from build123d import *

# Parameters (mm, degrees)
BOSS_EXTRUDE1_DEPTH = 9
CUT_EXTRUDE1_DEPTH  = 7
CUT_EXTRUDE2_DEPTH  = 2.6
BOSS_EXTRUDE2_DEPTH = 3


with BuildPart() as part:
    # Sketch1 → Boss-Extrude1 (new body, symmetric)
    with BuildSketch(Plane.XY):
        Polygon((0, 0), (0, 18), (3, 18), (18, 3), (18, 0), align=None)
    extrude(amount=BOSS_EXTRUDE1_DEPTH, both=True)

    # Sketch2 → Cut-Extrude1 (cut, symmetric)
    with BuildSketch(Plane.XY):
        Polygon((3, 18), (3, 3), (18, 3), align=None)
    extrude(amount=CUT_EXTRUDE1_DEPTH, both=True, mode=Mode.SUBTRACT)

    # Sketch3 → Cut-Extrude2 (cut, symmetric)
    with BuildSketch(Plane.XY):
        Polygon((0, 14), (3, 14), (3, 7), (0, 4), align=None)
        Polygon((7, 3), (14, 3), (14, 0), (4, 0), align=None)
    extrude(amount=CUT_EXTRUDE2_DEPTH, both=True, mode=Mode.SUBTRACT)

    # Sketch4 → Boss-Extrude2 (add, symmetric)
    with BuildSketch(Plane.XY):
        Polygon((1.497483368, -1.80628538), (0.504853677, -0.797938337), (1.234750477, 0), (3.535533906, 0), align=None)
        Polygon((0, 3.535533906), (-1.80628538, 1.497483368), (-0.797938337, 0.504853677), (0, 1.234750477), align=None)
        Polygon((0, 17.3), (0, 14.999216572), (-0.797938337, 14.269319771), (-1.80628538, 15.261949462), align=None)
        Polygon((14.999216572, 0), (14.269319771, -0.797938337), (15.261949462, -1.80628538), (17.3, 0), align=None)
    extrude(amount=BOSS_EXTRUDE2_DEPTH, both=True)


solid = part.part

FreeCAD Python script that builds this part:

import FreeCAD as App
import Part
import Sketcher
from FreeCAD import Vector
Q = App.Units.Quantity


def add_polygon(sketch, points):
    """Adds a closed chain of lines whose ends are joined by coincident constraints."""
    first, n = sketch.GeometryCount, len(points)
    for a, b in zip(points, points[1:] + points[:1]):
        sketch.addGeometry(Part.LineSegment(App.Vector(*a, 0), App.Vector(*b, 0)), False)
    for i in range(n):
        sketch.addConstraint(Sketcher.Constraint("Coincident", first + i, 2, first + (i + 1) % n, 1))

doc = App.newDocument("Part")
params = doc.addObject("Spreadsheet::Sheet", "Params")
for row, (alias, value) in enumerate([
    ("sketch1_width", "18 mm"),
    ("sketch1_width2", "3 mm"),
    ("pad1_length", "18 mm"),
    ("sketch2_width", "15 mm"),
    ("pocket1_length", "14 mm"),
    ("sketch3_width", "3 mm"),
    ("sketch3_width2", "7 mm"),
    ("pocket2_length", "5.2 mm"),
    ("pad2_length", "6 mm"),
], start=1):
    params.set(f"A{row}", alias)
    params.set(f"B{row}", "=" + value)
    params.setAlias(f"B{row}", alias)

body = doc.addObject("PartDesign::Body", "Body")

sketch1 = body.newObject("Sketcher::SketchObject", "Sketch")
sketch1.AttachmentSupport = (doc.getObject("XY_Plane"), [""])
sketch1.MapMode = "FlatFace"
add_polygon(sketch1, [(0, 18), (0, 0), (18, 0), (18, 3), (3, 18)])
sketch1.addConstraint([
    Sketcher.Constraint("Vertical", 0),
    Sketcher.Constraint("Horizontal", 1),
    Sketcher.Constraint("Vertical", 2),
    Sketcher.Constraint("Horizontal", 4),
    Sketcher.Constraint("Coincident", 0, 2, -1, 1),
    Sketcher.Constraint("Equal", 1, 0),
    Sketcher.Constraint("Equal", 4, 2),
    Sketcher.Constraint("DistanceX", 1, 1, 1, 2, Q("18 mm")),
    Sketcher.Constraint("DistanceX", 4, 2, 4, 1, Q("3 mm")),
])
sketch1.setExpression("Constraints[12]", "Params.sketch1_width")
sketch1.setExpression("Constraints[13]", "Params.sketch1_width2")
pad1 = body.newObject("PartDesign::Pad", "Pad")
pad1.Profile = sketch1
pad1.setExpression("Length", "Params.pad1_length")
pad1.Midplane = True

sketch2 = body.newObject("Sketcher::SketchObject", "Sketch001")
sketch2.AttachmentSupport = (doc.getObject("XY_Plane"), [""])
sketch2.MapMode = "FlatFace"
add_polygon(sketch2, [(3, 18), (3, 3), (18, 3)])
sketch2.addConstraint([
    Sketcher.Constraint("Vertical", 0),
    Sketcher.Constraint("Horizontal", 1),
    Sketcher.Constraint("Equal", 1, 0),
    Sketcher.Constraint("DistanceX", 1, 1, 1, 2, Q("15 mm")),
    Sketcher.Constraint("DistanceX", -1, 1, 0, 2, Q("3 mm")),
    Sketcher.Constraint("DistanceY", -1, 1, 0, 2, Q("3 mm")),
])
sketch2.setExpression("Constraints[6]", "Params.sketch2_width")
pocket1 = body.newObject("PartDesign::Pocket", "Pocket")
pocket1.Profile = sketch2
pocket1.setExpression("Length", "Params.pocket1_length")
pocket1.Midplane = True

sketch3 = body.newObject("Sketcher::SketchObject", "Sketch002")
sketch3.AttachmentSupport = (doc.getObject("XY_Plane"), [""])
sketch3.MapMode = "FlatFace"
add_polygon(sketch3, [(3, 14), (0, 14), (0, 4), (3, 7)])
add_polygon(sketch3, [(14, 3), (7, 3), (4, 0), (14, 0)])
sketch3.addConstraint([
    Sketcher.Constraint("Horizontal", 0),
    Sketcher.Constraint("Vertical", 1),
    Sketcher.Constraint("Vertical", 3),
    Sketcher.Constraint("Horizontal", 4),
    Sketcher.Constraint("Horizontal", 6),
    Sketcher.Constraint("Vertical", 7),
    Sketcher.Constraint("PointOnObject", 0, 2, -2),
    Sketcher.Constraint("PointOnObject", 5, 2, -1),
    Sketcher.Constraint("Parallel", 2, 5),
    Sketcher.Constraint("Equal", 6, 1),
    Sketcher.Constraint("Equal", 4, 3),
    Sketcher.Constraint("Equal", 0, 7),
    Sketcher.Constraint("DistanceX", 0, 2, 0, 1, Q("3 mm")),
    Sketcher.Constraint("DistanceX", 4, 2, 4, 1, Q("7 mm")),
    Sketcher.Constraint("DistanceY", -1, 1, 0, 2, Q("14 mm")),
    Sketcher.Constraint("DistanceX", -1, 1, 4, 2, Q("7 mm")),
])
sketch3.setExpression("Constraints[20]", "Params.sketch3_width")
sketch3.setExpression("Constraints[21]", "Params.sketch3_width2")
pocket2 = body.newObject("PartDesign::Pocket", "Pocket001")
pocket2.Profile = sketch3
pocket2.setExpression("Length", "Params.pocket2_length")
pocket2.Midplane = True

sketch4 = body.newObject("Sketcher::SketchObject", "Sketch003")
sketch4.AttachmentSupport = (doc.getObject("XY_Plane"), [""])
sketch4.MapMode = "FlatFace"
add_polygon(sketch4, [(0.504854, -0.797938), (1.497483, -1.806285), (3.535534, 0), (1.23475, 0)])
add_polygon(sketch4, [(0, 3.535534), (-1.806285, 1.497483), (-0.797938, 0.504854), (0, 1.23475)])
add_polygon(sketch4, [(0, 14.999217), (0, 17.3), (-1.806285, 15.261949), (-0.797938, 14.26932)])
add_polygon(sketch4, [(14.999217, 0), (14.26932, -0.797938), (15.261949, -1.806285), (17.3, 0)])
sketch4.addConstraint([
    Sketcher.Constraint("Horizontal", 2),
    Sketcher.Constraint("Vertical", 7),
    Sketcher.Constraint("Vertical", 8),
    Sketcher.Constraint("Horizontal", 15),
    Sketcher.Constraint("PointOnObject", 1, 2, -1),
    Sketcher.Constraint("PointOnObject", 6, 2, -2),
    Sketcher.Constraint("PointOnObject", 8, 2, -2),
    Sketcher.Constraint("PointOnObject", 14, 2, -1),
    Sketcher.Constraint("Parallel", 4, 9),
    Sketcher.Constraint("Parallel", 5, 10),
    Sketcher.Constraint("Parallel", 6, 11),
    Sketcher.Constraint("Parallel", 3, 12),
    Sketcher.Constraint("Parallel", 0, 13),
    Sketcher.Constraint("Parallel", 1, 14),
    Sketcher.Constraint("Horizontal", 3, 2, 12, 2),
    Sketcher.Constraint("Horizontal", 0, 2, 13, 2),
    Sketcher.Constraint("Vertical", 4, 2, 9, 2),
    Sketcher.Constraint("Vertical", 5, 2, 10, 2),
    Sketcher.Constraint("Equal", 15, 7),
    Sketcher.Constraint("Equal", 1, 4),
    Sketcher.Constraint("Equal", 0, 5),
    Sketcher.Constraint("Equal", 3, 6),
    Sketcher.Constraint("DistanceY", -1, 1, 8, 2, Q("17.3 mm")),
    Sketcher.Constraint("DistanceX", -1, 1, 14, 2, Q("17.3 mm")),
    Sketcher.Constraint("DistanceY", 6, 2, 9, 2, Q("14.027199 mm")),
    Sketcher.Constraint("DistanceX", 2, 2, 13, 2, Q("14.027199 mm")),
    Sketcher.Constraint("Distance", 1, Q("2.723292 mm")),
    Sketcher.Constraint("DistanceX", 2, 2, 2, 1, Q("2.300783 mm")),
    Sketcher.Constraint("DistanceX", -1, 1, 2, 2, Q("1.23475 mm")),
    Sketcher.Constraint("DistanceY", 3, 2, -1, 1, Q("0.797938 mm")),
    Sketcher.Constraint("DistanceX", 5, 2, -1, 1, Q("0.797938 mm")),
    Sketcher.Constraint("DistanceY", -1, 1, 10, 2, Q("14.26932 mm")),
])
pad2 = body.newObject("PartDesign::Pad", "Pad001")
pad2.Profile = sketch4
pad2.setExpression("Length", "Params.pad2_length")
pad2.Midplane = True

doc.recompute()
